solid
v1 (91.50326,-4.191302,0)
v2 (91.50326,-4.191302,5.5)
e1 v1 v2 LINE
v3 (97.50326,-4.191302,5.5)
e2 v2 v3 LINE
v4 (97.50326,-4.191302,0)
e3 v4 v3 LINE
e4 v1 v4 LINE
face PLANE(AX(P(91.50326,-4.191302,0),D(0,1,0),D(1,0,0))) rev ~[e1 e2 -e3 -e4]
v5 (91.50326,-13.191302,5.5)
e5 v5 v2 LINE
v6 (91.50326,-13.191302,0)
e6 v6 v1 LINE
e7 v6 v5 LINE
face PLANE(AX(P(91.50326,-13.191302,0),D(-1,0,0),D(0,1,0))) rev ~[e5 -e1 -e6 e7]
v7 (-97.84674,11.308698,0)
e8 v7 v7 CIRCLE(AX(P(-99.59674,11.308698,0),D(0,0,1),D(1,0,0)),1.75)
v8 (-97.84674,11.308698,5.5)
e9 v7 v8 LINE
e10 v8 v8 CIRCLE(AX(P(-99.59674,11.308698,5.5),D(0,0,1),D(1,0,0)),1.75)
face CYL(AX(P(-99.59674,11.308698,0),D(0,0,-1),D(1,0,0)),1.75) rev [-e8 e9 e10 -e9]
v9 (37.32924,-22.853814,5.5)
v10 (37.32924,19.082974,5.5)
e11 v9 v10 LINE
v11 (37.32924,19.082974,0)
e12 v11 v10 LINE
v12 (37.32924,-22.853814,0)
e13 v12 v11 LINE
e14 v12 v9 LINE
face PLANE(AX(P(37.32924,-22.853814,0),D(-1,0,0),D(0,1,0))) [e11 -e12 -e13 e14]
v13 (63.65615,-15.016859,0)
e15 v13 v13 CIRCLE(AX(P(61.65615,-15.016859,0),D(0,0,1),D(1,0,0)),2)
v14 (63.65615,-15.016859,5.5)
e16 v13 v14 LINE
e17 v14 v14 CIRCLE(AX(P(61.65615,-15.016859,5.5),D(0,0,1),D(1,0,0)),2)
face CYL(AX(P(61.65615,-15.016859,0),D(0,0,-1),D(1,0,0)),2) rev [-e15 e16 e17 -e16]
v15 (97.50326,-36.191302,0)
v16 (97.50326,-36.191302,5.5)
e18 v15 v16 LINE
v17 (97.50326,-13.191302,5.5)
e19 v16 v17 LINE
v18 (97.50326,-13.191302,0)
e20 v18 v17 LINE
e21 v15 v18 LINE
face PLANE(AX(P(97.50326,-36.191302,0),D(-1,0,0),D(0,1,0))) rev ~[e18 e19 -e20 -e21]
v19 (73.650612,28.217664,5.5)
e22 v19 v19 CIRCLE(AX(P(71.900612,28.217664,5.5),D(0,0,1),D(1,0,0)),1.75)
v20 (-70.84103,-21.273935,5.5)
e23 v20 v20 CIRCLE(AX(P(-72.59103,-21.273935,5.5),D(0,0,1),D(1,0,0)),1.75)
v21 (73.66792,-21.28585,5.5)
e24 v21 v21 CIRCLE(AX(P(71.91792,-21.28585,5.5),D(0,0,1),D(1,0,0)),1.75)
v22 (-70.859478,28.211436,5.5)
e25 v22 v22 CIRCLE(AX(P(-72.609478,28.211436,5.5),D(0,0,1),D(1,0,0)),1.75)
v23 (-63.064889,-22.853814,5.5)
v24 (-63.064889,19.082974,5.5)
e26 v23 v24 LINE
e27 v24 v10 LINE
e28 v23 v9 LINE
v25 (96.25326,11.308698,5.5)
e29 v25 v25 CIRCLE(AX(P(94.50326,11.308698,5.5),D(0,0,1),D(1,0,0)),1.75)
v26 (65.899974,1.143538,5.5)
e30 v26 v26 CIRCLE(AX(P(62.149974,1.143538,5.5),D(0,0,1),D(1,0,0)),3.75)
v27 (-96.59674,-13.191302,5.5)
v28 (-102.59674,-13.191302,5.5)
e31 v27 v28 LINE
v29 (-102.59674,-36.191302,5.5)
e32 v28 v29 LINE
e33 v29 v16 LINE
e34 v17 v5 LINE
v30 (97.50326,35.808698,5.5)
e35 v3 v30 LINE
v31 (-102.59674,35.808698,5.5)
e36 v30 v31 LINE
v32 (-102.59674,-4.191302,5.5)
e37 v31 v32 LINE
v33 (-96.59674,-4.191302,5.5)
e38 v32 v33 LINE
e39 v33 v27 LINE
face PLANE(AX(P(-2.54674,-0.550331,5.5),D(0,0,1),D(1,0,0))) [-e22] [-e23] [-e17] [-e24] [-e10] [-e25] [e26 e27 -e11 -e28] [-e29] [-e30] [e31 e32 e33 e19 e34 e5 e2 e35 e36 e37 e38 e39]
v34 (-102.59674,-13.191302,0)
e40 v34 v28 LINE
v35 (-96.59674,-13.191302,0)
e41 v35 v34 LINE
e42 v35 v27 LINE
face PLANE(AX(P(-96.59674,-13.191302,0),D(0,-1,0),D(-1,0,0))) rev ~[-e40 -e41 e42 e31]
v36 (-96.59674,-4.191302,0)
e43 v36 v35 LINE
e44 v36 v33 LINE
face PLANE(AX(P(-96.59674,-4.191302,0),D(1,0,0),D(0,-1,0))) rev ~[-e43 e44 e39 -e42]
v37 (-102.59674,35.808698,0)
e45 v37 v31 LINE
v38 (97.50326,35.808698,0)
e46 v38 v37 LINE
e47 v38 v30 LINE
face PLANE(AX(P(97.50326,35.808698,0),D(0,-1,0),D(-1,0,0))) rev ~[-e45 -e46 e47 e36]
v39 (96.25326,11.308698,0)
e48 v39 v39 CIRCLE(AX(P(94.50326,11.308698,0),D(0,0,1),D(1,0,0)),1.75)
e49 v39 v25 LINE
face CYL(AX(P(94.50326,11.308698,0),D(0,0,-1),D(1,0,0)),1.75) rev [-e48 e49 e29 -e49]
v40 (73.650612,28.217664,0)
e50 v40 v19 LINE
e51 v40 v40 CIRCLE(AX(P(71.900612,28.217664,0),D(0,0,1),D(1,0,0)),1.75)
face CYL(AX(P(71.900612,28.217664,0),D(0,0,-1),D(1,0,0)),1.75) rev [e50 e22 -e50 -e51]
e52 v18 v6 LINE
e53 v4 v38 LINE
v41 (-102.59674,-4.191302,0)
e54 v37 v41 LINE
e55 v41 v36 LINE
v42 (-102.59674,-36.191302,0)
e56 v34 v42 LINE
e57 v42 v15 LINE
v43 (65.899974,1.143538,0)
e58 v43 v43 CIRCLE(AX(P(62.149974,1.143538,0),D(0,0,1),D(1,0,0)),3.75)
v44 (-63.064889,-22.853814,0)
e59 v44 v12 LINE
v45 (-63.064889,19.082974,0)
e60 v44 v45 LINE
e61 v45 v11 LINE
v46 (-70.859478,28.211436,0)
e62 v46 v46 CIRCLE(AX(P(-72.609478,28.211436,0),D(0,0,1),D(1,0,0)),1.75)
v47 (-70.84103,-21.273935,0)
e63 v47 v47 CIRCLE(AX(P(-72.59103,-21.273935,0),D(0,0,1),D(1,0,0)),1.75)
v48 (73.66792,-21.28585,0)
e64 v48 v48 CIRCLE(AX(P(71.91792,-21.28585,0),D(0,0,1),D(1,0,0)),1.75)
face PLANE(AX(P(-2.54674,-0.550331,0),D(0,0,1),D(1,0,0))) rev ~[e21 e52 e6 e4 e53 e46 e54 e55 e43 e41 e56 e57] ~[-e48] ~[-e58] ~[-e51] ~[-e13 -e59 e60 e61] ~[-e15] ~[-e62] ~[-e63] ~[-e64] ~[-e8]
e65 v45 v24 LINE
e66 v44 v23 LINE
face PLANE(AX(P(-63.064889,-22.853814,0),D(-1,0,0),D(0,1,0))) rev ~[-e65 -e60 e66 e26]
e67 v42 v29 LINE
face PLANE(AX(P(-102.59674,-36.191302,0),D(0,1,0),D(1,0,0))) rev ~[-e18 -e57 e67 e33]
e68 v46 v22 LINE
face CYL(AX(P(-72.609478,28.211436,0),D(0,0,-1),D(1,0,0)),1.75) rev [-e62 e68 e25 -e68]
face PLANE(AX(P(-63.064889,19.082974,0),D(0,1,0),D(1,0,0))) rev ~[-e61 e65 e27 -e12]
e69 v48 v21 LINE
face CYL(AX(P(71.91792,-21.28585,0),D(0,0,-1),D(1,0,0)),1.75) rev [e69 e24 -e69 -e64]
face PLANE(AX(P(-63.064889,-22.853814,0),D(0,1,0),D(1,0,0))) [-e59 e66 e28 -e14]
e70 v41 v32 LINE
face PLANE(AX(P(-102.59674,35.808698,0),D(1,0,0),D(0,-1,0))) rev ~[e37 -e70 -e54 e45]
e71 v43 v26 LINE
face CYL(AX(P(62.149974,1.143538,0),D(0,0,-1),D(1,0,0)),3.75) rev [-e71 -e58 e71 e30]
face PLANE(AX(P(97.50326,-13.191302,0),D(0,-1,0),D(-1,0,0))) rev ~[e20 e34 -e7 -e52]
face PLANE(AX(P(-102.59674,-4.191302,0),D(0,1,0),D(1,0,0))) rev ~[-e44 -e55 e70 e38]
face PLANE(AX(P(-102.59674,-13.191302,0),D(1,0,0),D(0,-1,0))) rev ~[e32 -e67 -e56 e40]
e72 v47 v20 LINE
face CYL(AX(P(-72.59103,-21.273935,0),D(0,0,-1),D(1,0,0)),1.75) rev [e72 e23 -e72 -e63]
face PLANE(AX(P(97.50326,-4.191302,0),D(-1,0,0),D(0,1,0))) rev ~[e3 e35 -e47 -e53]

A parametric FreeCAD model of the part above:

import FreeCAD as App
import Part
import Sketcher
Q = App.Units.Quantity


def add_polygon(sketch, points):
    """Adds a closed chain of lines whose ends are joined by coincident constraints."""
    first, n = sketch.GeometryCount, len(points)
    for a, b in zip(points, points[1:] + points[:1]):
        sketch.addGeometry(Part.LineSegment(App.Vector(*a, 0), App.Vector(*b, 0)), False)
    for i in range(n):
        sketch.addConstraint(Sketcher.Constraint("Coincident", first + i, 2, first + (i + 1) % n, 1))

doc = App.newDocument("Part")
body = doc.addObject("PartDesign::Body", "Body")

sketch1 = doc.addObject("Sketcher::SketchObject", "Sketch")
body.addObject(sketch1)
sketch1.AttachmentSupport = (doc.XY_Plane, [""])
sketch1.MapMode = "FlatFace"
add_polygon(sketch1, [(97.5, 35.8), (-102.6, 35.8), (-102.6, -4.2), (-96.6, -4.2), (-96.6, -13.2), (-102.6, -13.2), (-102.6, -36.2), (97.5, -36.2), (97.5, -13.2), (91.5, -13.2), (91.5, -4.2), (97.5, -4.2)])
sketch1.addGeometry(Part.Circle(App.Vector(-72.6, -21.3, 0), App.Vector(0, 0, 1), 1.8), False)
add_polygon(sketch1, [(37.3, -22.9), (-63.1, -22.9), (-63.1, 19.1), (37.3, 19.1)])
sketch1.addGeometry(Part.Circle(App.Vector(71.9, -21.3, 0), App.Vector(0, 0, 1), 1.8), False)
sketch1.addGeometry(Part.Circle(App.Vector(61.7, -15, 0), App.Vector(0, 0, 1), 2), False)
sketch1.addGeometry(Part.Circle(App.Vector(62.1, 1.1, 0), App.Vector(0, 0, 1), 3.8), False)
sketch1.addGeometry(Part.Circle(App.Vector(-99.6, 11.3, 0), App.Vector(0, 0, 1), 1.8), False)
sketch1.addGeometry(Part.Circle(App.Vector(-72.6, 28.2, 0), App.Vector(0, 0, 1), 1.8), False)
sketch1.addGeometry(Part.Circle(App.Vector(94.5, 11.3, 0), App.Vector(0, 0, 1), 1.8), False)
sketch1.addGeometry(Part.Circle(App.Vector(71.9, 28.2, 0), App.Vector(0, 0, 1), 1.8), False)
sketch1.addConstraint([
    Sketcher.Constraint("Horizontal", 0),
    Sketcher.Constraint("Vertical", 1),
    Sketcher.Constraint("Horizontal", 2),
    Sketcher.Constraint("Vertical", 3),
    Sketcher.Constraint("Horizontal", 4),
    Sketcher.Constraint("Vertical", 5),
    Sketcher.Constraint("Horizontal", 6),
    Sketcher.Constraint("Vertical", 7),
    Sketcher.Constraint("Horizontal", 8),
    Sketcher.Constraint("Vertical", 9),
    Sketcher.Constraint("Horizontal", 10),
    Sketcher.Constraint("Vertical", 11),
    Sketcher.Constraint("Horizontal", 13),
    Sketcher.Constraint("Vertical", 14),
    Sketcher.Constraint("Horizontal", 15),
    Sketcher.Constraint("Vertical", 16),
    Sketcher.Constraint("Equal", 12, 17),
    Sketcher.Constraint("Equal", 17, 20),
    Sketcher.Constraint("Equal", 20, 21),
    Sketcher.Constraint("Equal", 21, 22),
    Sketcher.Constraint("Equal", 22, 23),
    Sketcher.Constraint("Horizontal", 20, 3, 22, 3),
    Sketcher.Constraint("Horizontal", 4, 2, 7, 2),
    Sketcher.Constraint("Horizontal", 2, 2, 9, 2),
    Sketcher.Constraint("Vertical", 1, 2, 4, 2),
    Sketcher.Constraint("Vertical", 7, 2, 10, 2),
    Sketcher.Constraint("Equal", 4, 8),
    Sketcher.Constraint("Diameter", 18, Q("4 mm")),
    Sketcher.Constraint("Diameter", 12, Q("3.5 mm")),
    Sketcher.Constraint("Diameter", 19, Q("7.5 mm")),
    Sketcher.Constraint("DistanceX", 2, 1, 2, 2, Q("6 mm")),
    Sketcher.Constraint("DistanceY", 1, 2, 1, 1, Q("40 mm")),
    Sketcher.Constraint("DistanceY", 3, 2, 3, 1, Q("9 mm")),
    Sketcher.Constraint("DistanceY", 5, 2, 5, 1, Q("23 mm")),
    Sketcher.Constraint("DistanceX", 0, 2, 0, 1, Q("200.1 mm")),
    Sketcher.Constraint("DistanceX", 0, 2, 20, 3, Q("3 mm")),
    Sketcher.Constraint("DistanceX", 22, 3, 6, 2, Q("3 mm")),
    Sketcher.Constraint("DistanceY", 20, 3, 0, 2, Q("24.5 mm")),
    Sketcher.Constraint("DistanceX", 13, 2, 13, 1, Q("100.394129 mm")),
    Sketcher.Constraint("DistanceY", 14, 1, 14, 2, Q("41.936789 mm")),
    Sketcher.Constraint("DistanceX", 21, 3, 17, 3, Q("144.527398 mm")),
    Sketcher.Constraint("DistanceX", 12, 3, -1, 1, Q("72.59103 mm")),
    Sketcher.Constraint("DistanceX", -1, 1, 17, 3, Q("71.91792 mm")),
    Sketcher.Constraint("DistanceY", 17, 3, -1, 1, Q("21.28585 mm")),
    Sketcher.Constraint("DistanceX", -1, 1, 18, 3, Q("61.65615 mm")),
    Sketcher.Constraint("DistanceY", 18, 3, -1, 1, Q("15.016859 mm")),
    Sketcher.Constraint("DistanceX", 20, 3, -1, 1, Q("99.59674 mm")),
    Sketcher.Constraint("DistanceX", -1, 1, 23, 3, Q("71.900612 mm")),
    Sketcher.Constraint("DistanceX", 13, 2, -1, 1, Q("63.064889 mm")),
    Sketcher.Constraint("DistanceY", 19, 3, 20, 3, Q("10.16516 mm")),
    Sketcher.Constraint("DistanceY", 17, 3, 20, 3, Q("32.594548 mm")),
    Sketcher.Constraint("DistanceY", 12, 3, 21, 3, Q("49.485371 mm")),
    Sketcher.Constraint("DistanceY", 21, 3, 23, 3, Q("0.006228 mm")),
    Sketcher.Constraint("DistanceY", 13, 2, 12, 3, Q("1.579879 mm")),
    Sketcher.Constraint("DistanceY", 12, 3, -1, 1, Q("21.273935 mm")),
    Sketcher.Constraint("DistanceX", -1, 1, 19, 3, Q("62.149974 mm")),
])
pad1 = doc.addObject("PartDesign::Pad", "Pad")
body.addObject(pad1)
pad1.Profile = sketch1
pad1.Length = 5.5

doc.recompute()
